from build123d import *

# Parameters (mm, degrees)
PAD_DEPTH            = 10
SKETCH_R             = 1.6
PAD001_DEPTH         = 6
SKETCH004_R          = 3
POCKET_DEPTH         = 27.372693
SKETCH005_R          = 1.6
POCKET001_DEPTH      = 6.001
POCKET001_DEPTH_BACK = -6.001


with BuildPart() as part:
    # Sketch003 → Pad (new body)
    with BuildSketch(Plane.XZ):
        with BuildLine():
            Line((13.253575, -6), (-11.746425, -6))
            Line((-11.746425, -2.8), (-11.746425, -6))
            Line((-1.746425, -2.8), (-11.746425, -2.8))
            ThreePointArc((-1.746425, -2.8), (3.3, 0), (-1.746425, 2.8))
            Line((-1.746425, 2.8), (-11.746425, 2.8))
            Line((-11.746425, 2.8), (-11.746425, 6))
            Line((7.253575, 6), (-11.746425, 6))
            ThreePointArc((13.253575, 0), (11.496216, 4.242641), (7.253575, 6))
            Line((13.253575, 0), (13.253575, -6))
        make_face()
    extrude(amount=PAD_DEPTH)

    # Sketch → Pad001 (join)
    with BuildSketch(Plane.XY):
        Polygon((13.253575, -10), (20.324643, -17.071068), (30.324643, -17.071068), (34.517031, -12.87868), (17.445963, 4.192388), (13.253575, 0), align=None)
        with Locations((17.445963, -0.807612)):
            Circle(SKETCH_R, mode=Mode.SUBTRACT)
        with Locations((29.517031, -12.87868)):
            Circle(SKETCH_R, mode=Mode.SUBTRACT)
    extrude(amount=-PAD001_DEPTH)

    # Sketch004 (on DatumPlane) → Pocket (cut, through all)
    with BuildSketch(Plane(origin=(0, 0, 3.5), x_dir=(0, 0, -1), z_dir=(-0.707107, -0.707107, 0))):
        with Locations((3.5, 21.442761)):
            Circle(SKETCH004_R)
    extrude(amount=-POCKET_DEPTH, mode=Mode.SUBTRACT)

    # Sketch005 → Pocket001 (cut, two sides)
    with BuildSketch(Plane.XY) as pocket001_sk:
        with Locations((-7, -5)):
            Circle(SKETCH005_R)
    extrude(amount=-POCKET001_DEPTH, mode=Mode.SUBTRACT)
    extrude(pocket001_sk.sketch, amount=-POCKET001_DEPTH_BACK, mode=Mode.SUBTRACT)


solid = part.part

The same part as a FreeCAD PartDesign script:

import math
import FreeCAD as App
import Part
import Sketcher
from FreeCAD import Vector

doc = App.newDocument("Part")
params = doc.addObject("Spreadsheet::Sheet", "Params")
for row, (alias, value) in enumerate([
    ("sketch1_radius", "5.999999 mm"),
    ("sketch1_radius2", "3.3 mm"),
    ("sketch1_width", "25 mm"),
    ("sketch1_width2", "10 mm"),
    ("sketch1_height", "3.2 mm"),
    ("pad1_length", "10 mm"),
    ("sketch2_diameter", "3.2 mm"),
    ("sketch2_width", "10 mm"),
    ("sketch2_length", "10 mm"),
    ("pad2_length", "6 mm"),
    ("sketch3_diameter", "6 mm"),
    ("sketch4_diameter", "3.2 mm"),
], start=1):
    params.set(f"A{row}", alias)
    params.set(f"B{row}", "=" + value)
    params.setAlias(f"B{row}", alias)

body = doc.addObject("PartDesign::Body", "Body")

# Sketch on XZ plane
sketch1 = body.newObject("Sketcher::SketchObject", "Sketch")
sketch1.AttachmentSupport = (doc.getObject("XZ_Plane"), [""])
sketch1.MapMode = "FlatFace"
sketch1.addGeometry([
    Part.LineSegment(Vector(-11.7, -6, 0), Vector(13.3, -6, 0)),  # 0
    Part.LineSegment(Vector(13.3, -6, 0), Vector(13.3, 0, 0)),  # 1
    Part.ArcOfCircle(Part.Circle(Vector(7.3, 0, 0), Vector(0, 0, 1), 6), math.radians(0), math.radians(90)),  # 2
    Part.LineSegment(Vector(7.3, 6, 0), Vector(-11.7, 6, 0)),  # 3
    Part.LineSegment(Vector(-11.7, 6, 0), Vector(-11.7, 2.8, 0)),  # 4
    Part.LineSegment(Vector(-11.7, 2.8, 0), Vector(-1.7, 2.8, 0)),  # 5
    Part.ArcOfCircle(Part.Circle(Vector(0, 0, 0), Vector(0, 0, 1), 3.3), math.radians(-122), math.radians(122)),  # 6
    Part.LineSegment(Vector(-1.7, -2.8, 0), Vector(-11.7, -2.8, 0)),  # 7
    Part.LineSegment(Vector(-11.7, -2.8, 0), Vector(-11.7, -6, 0)),  # 8
], False)
sketch1.addConstraint([
    Sketcher.Constraint("Coincident", 0, 2, 1, 1),
    Sketcher.Constraint("Tangent", 1, 2, 2, 1),
    Sketcher.Constraint("Tangent", 2, 2, 3, 1),
    Sketcher.Constraint("Coincident", 3, 2, 4, 1),
    Sketcher.Constraint("Coincident", 4, 2, 5, 1),
    Sketcher.Constraint("Coincident", 5, 2, 6, 2),
    Sketcher.Constraint("Coincident", 6, 1, 7, 1),
    Sketcher.Constraint("Coincident", 7, 2, 8, 1),
    Sketcher.Constraint("Coincident", 8, 2, 0, 1),
    Sketcher.Constraint("Horizontal", 0),
    Sketcher.Constraint("Vertical", 1),
    Sketcher.Constraint("Horizontal", 3),
    Sketcher.Constraint("Vertical", 4),
    Sketcher.Constraint("Horizontal", 5),
    Sketcher.Constraint("Horizontal", 7),
    Sketcher.Constraint("Vertical", 8),
    Sketcher.Constraint("Coincident", 6, 3, -1, 1),
    Sketcher.Constraint("Symmetric", 4, 2, 7, 2, -1),
    Sketcher.Constraint("PointOnObject", 2, 3, -1),
    Sketcher.Constraint("Equal", 4, 8),
    Sketcher.Constraint("Radius", 2, 5.999999),
    Sketcher.Constraint("Radius", 6, 3.3),
    Sketcher.Constraint("DistanceX", 0, 1, 0, 2, 25.0),
    Sketcher.Constraint("DistanceX", 5, 1, 5, 2, 10.0),
    Sketcher.Constraint("DistanceY", 4, 2, 4, 1, 3.2),
])
sketch1.setExpression("Constraints[20]", "Params.sketch1_radius")
sketch1.setExpression("Constraints[21]", "Params.sketch1_radius2")
sketch1.setExpression("Constraints[22]", "Params.sketch1_width")
sketch1.setExpression("Constraints[23]", "Params.sketch1_width2")
sketch1.setExpression("Constraints[24]", "Params.sketch1_height")
pad1 = body.newObject("PartDesign::Pad", "Pad")
pad1.Profile = sketch1
pad1.setExpression("Length", "Params.pad1_length")

# Sketch on XY plane
sketch2 = body.newObject("Sketcher::SketchObject", "Sketch001")
sketch2.AttachmentSupport = (doc.getObject("XY_Plane"), [""])
sketch2.MapMode = "FlatFace"
sketch2.addGeometry([
    Part.LineSegment(Vector(13.3, -10, 0), Vector(20.3, -17.1, 0)),  # 0
    Part.LineSegment(Vector(20.3, -17.1, 0), Vector(30.3, -17.1, 0)),  # 1
    Part.LineSegment(Vector(30.3, -17.1, 0), Vector(34.5, -12.9, 0)),  # 2
    Part.LineSegment(Vector(34.5, -12.9, 0), Vector(17.4, 4.2, 0)),  # 3
    Part.LineSegment(Vector(17.4, 4.2, 0), Vector(13.3, 0, 0)),  # 4
    Part.LineSegment(Vector(13.3, 0, 0), Vector(13.3, -10, 0)),  # 5
    Part.Circle(Vector(29.5, -12.9, 0), Vector(0, 0, 1), 1.6),  # 6
    Part.Circle(Vector(17.4, -0.8, 0), Vector(0, 0, 1), 1.6),  # 7
], False)
sketch2.addConstraint([
    Sketcher.Constraint("Coincident", 0, 2, 1, 1),
    Sketcher.Constraint("Coincident", 1, 2, 2, 1),
    Sketcher.Constraint("Coincident", 2, 2, 3, 1),
    Sketcher.Constraint("Coincident", 3, 2, 4, 1),
    Sketcher.Constraint("Coincident", 4, 2, 5, 1),
    Sketcher.Constraint("Coincident", 5, 2, 0, 1),
    Sketcher.Constraint("Horizontal", 1),
    Sketcher.Constraint("Vertical", 5),
    Sketcher.Constraint("Equal", 6, 7),
    Sketcher.Constraint("PointOnObject", 4, 2, -1),
    Sketcher.Constraint("Perpendicular", 0, 2),
    Sketcher.Constraint("Perpendicular", 2, 3),
    Sketcher.Constraint("Perpendicular", 3, 4),
    Sketcher.Constraint("Horizontal", 6, 3, 2, 2),
    Sketcher.Constraint("Vertical", 7, 3, 3, 2),
    Sketcher.Constraint("Equal", 1, 5),
    Sketcher.Constraint("Equal", 2, 4),
    Sketcher.Constraint("Diameter", 6, 3.2),
    Sketcher.Constraint("DistanceX", 1, 1, 1, 2, 10.0),
    Sketcher.Constraint("Distance", 0, 10.0),
    Sketcher.Constraint("DistanceX", 6, 3, 2, 2, 5.0),
    Sketcher.Constraint("DistanceY", 7, 3, 3, 2, 5.0),
    Sketcher.Constraint("Distance", 2, 5.928932),
    Sketcher.Constraint("DistanceX", -1, 1, 6, 3, 29.517031),
])
sketch2.setExpression("Constraints[17]", "Params.sketch2_diameter")
sketch2.setExpression("Constraints[18]", "Params.sketch2_width")
sketch2.setExpression("Constraints[19]", "Params.sketch2_length")
pad2 = body.newObject("PartDesign::Pad", "Pad001")
pad2.Profile = sketch2
pad2.setExpression("Length", "Params.pad2_length")
pad2.Reversed = True

# Sketch on an angled plane
sketch3 = body.newObject("Sketcher::SketchObject", "Sketch002")
sketch3.Placement = App.Placement(Vector(0, 0, 3.5), App.Rotation(Vector(0, 0, -1), Vector(0.707106781, -0.707106781, 0), Vector(-0.707106781, -0.707106781, 0), "ZXY"))
sketch3.addGeometry(Part.Circle(Vector(3.5, 21.4, 0), Vector(0, 0, 1), 3), False)
sketch3.addConstraint([
    Sketcher.Constraint("Diameter", 0, 6.0),
    Sketcher.Constraint("DistanceX", -1, 1, 0, 3, 3.5),
    Sketcher.Constraint("DistanceY", -1, 1, 0, 3, 21.442761),
])
sketch3.setExpression("Constraints[0]", "Params.sketch3_diameter")
pocket1 = body.newObject("PartDesign::Pocket", "Pocket")
pocket1.Profile = sketch3
pocket1.Type = "ThroughAll"

# Sketch on XY plane
sketch4 = body.newObject("Sketcher::SketchObject", "Sketch003")
sketch4.AttachmentSupport = (doc.getObject("XY_Plane"), [""])
sketch4.MapMode = "FlatFace"
sketch4.addGeometry(Part.Circle(Vector(-7, -5, 0), Vector(0, 0, 1), 1.6), False)
sketch4.addConstraint([
    Sketcher.Constraint("Diameter", 0, 3.2),
    Sketcher.Constraint("DistanceX", 0, 3, -1, 1, 7.0),
    Sketcher.Constraint("DistanceY", 0, 3, -1, 1, 5.0),
])
sketch4.setExpression("Constraints[0]", "Params.sketch4_diameter")
pocket2 = body.newObject("PartDesign::Pocket", "Pocket001")
pocket2.Profile = sketch4
pocket2.Type = "ThroughAll"
pocket2.Midplane = True

doc.recompute()
